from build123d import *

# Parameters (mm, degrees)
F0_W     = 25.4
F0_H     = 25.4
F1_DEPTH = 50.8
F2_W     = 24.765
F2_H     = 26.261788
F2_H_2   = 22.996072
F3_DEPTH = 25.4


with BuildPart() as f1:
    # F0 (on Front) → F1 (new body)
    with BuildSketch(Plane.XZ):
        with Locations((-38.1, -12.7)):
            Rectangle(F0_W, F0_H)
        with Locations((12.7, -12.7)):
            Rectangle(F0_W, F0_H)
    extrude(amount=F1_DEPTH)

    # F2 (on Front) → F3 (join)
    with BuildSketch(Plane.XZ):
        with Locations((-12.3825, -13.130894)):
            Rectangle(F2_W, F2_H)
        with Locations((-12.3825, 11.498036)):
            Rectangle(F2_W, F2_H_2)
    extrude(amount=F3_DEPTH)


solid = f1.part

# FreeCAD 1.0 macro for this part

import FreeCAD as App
import Part
import Sketcher

V = App.Vector
Q = App.Units.Quantity

doc = App.newDocument("Part")
body = doc.addObject("PartDesign::Body", "Body")
body.AllowCompound = True

# Sketch on XZ plane
sketch1 = body.newObject("Sketcher::SketchObject", "Sketch")
sketch1.AttachmentSupport = (doc.getObject("XZ_Plane"), [""])
sketch1.MapMode = "FlatFace"
sketch1.addGeometry([
    Part.LineSegment(V(-50.8, 0, 0), V(-50.8, -25.4, 0)),  # 0
    Part.LineSegment(V(-50.8, -25.4, 0), V(-25.4, -25.4, 0)),  # 1
    Part.LineSegment(V(-25.4, -25.4, 0), V(-25.4, 0, 0)),  # 2
    Part.LineSegment(V(-25.4, 0, 0), V(-50.8, 0, 0)),  # 3
    Part.LineSegment(V(0, 0, 0), V(0, -25.4, 0)),  # 4
    Part.LineSegment(V(0, -25.4, 0), V(25.4, -25.4, 0)),  # 5
    Part.LineSegment(V(25.4, -25.4, 0), V(25.4, 0, 0)),  # 6
    Part.LineSegment(V(25.4, 0, 0), V(0, 0, 0)),  # 7
], False)
sketch1.addConstraint([
    Sketcher.Constraint("Coincident", 0, 2, 1, 1),
    Sketcher.Constraint("Coincident", 1, 2, 2, 1),
    Sketcher.Constraint("Coincident", 2, 2, 3, 1),
    Sketcher.Constraint("Coincident", 3, 2, 0, 1),
    Sketcher.Constraint("Coincident", 4, 2, 5, 1),
    Sketcher.Constraint("Coincident", 5, 2, 6, 1),
    Sketcher.Constraint("Coincident", 6, 2, 7, 1),
    Sketcher.Constraint("Coincident", 7, 2, 4, 1),
    Sketcher.Constraint("Vertical", 0),
    Sketcher.Constraint("Horizontal", 1),
    Sketcher.Constraint("Vertical", 2),
    Sketcher.Constraint("Horizontal", 3),
    Sketcher.Constraint("Vertical", 4),
    Sketcher.Constraint("Horizontal", 5),
    Sketcher.Constraint("Vertical", 6),
    Sketcher.Constraint("Horizontal", 7),
    Sketcher.Constraint("Coincident", 7, 2, -1, 1),
    Sketcher.Constraint("Symmetric", 2, 2, 6, 2, -1, 1),
    Sketcher.Constraint("Horizontal", 1, 2, 4, 2),
    Sketcher.Constraint("Equal", 3, 5),
    Sketcher.Constraint("Equal", 7, 0),
    Sketcher.Constraint("DistanceX", 1, 1, 1, 2, Q("1 in")),
])
pad1 = body.newObject("PartDesign::Pad", "Pad")
pad1.Profile = sketch1
pad1.Length = Q("2 in")

# Sketch on XZ plane
sketch2 = body.newObject("Sketcher::SketchObject", "Sketch001")
sketch2.AttachmentSupport = (doc.getObject("XZ_Plane"), [""])
sketch2.MapMode = "FlatFace"
sketch2.addGeometry([
    Part.LineSegment(V(-24.765, -26.261788, 0), V(0, -26.261788, 0)),
    Part.LineSegment(V(0, -26.261788, 0), V(0, 22.996072, 0)),
    Part.LineSegment(V(0, 22.996072, 0), V(-24.765, 22.996072, 0)),
    Part.LineSegment(V(-24.765, 22.996072, 0), V(-24.765, -26.261788, 0)),
], False)
sketch2.addConstraint([
    Sketcher.Constraint("Coincident", 0, 2, 1, 1),
    Sketcher.Constraint("Coincident", 1, 2, 2, 1),
    Sketcher.Constraint("Coincident", 2, 2, 3, 1),
    Sketcher.Constraint("Coincident", 3, 2, 0, 1),
    Sketcher.Constraint("Horizontal", 0),
    Sketcher.Constraint("Vertical", 1),
    Sketcher.Constraint("Horizontal", 2),
    Sketcher.Constraint("Vertical", 3),
    Sketcher.Constraint("PointOnObject", 0, 2, -2),
    Sketcher.Constraint("DistanceX", 0, 1, 0, 2, Q("0.975 in")),
    Sketcher.Constraint("DistanceY", 1, 1, 1, 2, Q("49.25786 mm")),
    Sketcher.Constraint("DistanceY", 0, 2, -1, 1, Q("26.261788 mm")),
])
pad2 = body.newObject("PartDesign::Pad", "Pad001")
pad2.Profile = sketch2
pad2.Length = Q("1 in")

doc.recompute()
